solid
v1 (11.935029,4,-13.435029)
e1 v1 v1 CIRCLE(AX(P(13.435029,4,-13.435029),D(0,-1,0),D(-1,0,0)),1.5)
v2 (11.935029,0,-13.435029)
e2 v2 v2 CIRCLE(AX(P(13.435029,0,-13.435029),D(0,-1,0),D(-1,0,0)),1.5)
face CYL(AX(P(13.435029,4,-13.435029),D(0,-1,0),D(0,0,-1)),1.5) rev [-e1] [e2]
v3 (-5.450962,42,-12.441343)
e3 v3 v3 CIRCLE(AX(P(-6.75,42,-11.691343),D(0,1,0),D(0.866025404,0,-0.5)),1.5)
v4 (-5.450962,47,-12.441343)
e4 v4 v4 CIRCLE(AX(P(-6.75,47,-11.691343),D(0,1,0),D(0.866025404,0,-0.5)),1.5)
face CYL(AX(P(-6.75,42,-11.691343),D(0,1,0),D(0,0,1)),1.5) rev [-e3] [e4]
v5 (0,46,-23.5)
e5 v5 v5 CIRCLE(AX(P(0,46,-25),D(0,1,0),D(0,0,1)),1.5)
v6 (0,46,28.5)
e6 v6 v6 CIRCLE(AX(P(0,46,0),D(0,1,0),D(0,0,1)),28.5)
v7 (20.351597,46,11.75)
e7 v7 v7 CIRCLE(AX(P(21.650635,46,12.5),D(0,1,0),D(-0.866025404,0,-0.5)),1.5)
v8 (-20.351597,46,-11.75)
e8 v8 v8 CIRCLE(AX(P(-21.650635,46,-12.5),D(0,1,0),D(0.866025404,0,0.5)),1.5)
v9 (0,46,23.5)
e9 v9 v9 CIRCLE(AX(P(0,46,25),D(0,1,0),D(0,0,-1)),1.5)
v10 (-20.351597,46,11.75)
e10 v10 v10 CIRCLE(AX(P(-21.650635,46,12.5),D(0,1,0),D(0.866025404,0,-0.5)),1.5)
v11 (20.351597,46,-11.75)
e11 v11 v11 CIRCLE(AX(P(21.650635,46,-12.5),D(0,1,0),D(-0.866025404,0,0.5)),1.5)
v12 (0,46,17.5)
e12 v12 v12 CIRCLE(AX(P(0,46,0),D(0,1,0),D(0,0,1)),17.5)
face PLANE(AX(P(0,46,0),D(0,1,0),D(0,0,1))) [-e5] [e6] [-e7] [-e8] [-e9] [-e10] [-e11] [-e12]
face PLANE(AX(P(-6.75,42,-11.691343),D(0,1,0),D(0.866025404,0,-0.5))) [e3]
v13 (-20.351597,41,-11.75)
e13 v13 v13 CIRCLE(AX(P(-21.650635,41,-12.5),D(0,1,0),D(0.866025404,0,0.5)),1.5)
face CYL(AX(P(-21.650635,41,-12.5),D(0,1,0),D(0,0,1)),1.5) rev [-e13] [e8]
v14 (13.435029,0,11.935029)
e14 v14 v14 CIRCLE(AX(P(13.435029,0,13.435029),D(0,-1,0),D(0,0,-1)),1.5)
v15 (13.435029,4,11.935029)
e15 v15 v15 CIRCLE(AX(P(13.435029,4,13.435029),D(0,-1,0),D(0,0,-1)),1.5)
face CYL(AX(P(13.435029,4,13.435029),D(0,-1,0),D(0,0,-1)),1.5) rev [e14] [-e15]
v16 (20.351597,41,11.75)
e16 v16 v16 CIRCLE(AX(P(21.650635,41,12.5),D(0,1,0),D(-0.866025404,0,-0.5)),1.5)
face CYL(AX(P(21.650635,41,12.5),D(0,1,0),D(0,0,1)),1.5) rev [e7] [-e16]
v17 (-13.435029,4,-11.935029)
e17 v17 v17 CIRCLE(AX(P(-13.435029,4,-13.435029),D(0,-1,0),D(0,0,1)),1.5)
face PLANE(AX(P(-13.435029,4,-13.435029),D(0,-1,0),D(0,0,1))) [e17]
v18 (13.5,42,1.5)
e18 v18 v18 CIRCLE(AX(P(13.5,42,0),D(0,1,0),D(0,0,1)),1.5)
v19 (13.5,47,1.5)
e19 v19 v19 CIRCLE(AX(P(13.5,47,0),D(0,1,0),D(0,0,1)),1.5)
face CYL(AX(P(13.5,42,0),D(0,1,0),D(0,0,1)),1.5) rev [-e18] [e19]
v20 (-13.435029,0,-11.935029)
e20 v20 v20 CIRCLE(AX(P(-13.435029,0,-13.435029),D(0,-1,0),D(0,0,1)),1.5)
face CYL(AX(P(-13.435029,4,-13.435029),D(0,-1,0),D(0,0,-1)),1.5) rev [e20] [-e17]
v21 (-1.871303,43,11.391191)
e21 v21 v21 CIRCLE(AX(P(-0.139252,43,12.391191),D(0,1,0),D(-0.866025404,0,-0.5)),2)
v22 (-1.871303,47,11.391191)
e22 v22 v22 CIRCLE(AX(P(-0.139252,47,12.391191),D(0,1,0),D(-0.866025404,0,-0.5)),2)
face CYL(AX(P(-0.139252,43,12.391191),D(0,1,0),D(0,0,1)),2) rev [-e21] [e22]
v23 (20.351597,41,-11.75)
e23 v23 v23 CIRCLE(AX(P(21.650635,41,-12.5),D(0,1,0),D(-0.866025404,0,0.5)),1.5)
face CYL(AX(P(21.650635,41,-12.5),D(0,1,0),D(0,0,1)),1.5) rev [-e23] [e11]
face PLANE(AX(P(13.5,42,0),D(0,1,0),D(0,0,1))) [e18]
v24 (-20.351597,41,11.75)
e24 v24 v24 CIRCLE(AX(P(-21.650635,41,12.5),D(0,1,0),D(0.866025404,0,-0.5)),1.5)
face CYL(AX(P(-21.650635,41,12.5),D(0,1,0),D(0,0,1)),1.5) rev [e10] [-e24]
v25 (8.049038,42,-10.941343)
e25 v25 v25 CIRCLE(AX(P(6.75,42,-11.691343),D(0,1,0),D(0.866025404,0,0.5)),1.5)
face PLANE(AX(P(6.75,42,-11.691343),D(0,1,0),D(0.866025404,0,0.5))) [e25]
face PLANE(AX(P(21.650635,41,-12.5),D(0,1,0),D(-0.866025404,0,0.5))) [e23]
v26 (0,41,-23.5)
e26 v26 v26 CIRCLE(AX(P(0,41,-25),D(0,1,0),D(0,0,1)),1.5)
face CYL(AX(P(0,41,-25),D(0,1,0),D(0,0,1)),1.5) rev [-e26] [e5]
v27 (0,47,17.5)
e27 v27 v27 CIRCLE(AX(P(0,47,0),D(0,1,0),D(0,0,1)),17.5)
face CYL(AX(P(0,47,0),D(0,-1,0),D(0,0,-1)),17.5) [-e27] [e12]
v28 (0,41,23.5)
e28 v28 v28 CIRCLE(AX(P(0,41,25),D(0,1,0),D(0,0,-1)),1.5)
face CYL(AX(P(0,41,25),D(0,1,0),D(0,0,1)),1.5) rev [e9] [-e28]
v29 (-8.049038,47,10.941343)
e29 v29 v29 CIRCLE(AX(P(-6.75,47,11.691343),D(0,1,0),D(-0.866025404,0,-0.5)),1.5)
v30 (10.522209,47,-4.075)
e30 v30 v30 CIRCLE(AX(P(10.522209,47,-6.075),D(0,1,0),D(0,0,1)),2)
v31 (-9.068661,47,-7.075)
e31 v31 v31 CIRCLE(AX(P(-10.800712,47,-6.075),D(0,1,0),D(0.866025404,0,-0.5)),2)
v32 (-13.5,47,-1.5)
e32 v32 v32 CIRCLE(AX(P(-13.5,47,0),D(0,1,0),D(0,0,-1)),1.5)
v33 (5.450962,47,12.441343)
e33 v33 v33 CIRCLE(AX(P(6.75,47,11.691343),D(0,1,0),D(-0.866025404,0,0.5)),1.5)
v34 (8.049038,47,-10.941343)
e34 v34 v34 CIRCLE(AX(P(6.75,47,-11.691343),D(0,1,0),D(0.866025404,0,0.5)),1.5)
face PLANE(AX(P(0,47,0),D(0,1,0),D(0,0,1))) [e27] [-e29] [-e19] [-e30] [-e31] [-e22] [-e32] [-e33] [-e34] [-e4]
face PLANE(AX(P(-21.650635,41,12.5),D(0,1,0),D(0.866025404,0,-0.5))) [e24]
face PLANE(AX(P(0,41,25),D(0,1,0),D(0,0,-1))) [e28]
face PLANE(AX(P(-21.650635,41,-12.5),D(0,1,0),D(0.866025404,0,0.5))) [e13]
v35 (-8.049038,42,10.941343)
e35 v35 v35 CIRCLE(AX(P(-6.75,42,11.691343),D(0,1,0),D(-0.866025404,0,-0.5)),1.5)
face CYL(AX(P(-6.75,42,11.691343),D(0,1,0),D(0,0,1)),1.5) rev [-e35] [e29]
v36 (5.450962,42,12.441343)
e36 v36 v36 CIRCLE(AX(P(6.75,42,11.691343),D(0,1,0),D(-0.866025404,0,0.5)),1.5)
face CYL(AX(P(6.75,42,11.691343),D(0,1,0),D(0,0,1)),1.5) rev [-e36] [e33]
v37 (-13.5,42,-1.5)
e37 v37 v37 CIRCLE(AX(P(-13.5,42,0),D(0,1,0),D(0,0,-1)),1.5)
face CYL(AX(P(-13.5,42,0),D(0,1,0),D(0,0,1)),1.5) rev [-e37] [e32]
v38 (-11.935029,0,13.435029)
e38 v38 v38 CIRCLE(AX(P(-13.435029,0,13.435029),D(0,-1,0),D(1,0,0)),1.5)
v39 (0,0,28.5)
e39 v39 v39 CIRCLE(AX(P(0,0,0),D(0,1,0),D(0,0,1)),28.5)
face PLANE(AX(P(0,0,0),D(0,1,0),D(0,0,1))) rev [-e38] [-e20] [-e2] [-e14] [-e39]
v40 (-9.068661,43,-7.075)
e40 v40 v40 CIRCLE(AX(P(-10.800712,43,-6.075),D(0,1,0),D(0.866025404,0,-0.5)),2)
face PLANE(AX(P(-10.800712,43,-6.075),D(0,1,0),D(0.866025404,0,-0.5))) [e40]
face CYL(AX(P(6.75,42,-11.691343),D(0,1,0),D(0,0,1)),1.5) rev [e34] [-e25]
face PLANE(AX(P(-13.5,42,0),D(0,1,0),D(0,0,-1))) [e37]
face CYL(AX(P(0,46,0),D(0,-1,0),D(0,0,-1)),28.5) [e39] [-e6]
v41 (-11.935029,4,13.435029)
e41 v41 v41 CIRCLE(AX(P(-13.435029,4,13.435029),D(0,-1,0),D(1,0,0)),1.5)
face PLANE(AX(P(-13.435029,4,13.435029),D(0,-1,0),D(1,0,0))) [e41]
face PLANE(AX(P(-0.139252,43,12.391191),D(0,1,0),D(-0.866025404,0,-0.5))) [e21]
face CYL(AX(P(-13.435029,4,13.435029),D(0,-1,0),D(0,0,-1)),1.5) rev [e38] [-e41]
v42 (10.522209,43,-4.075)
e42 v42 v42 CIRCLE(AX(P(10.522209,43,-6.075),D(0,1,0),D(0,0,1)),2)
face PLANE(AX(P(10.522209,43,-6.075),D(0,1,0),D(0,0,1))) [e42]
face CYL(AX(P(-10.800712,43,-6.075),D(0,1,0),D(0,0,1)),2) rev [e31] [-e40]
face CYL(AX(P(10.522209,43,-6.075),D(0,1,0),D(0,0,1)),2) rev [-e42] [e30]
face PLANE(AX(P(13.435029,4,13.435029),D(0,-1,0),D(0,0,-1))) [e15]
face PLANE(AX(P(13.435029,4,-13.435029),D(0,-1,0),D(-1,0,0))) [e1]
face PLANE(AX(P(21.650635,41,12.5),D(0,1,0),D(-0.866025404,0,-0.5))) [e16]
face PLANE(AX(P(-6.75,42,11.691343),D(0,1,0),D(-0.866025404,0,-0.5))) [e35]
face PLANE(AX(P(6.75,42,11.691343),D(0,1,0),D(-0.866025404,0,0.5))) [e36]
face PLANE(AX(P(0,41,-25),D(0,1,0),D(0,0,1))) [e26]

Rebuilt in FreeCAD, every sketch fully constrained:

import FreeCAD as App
import Part
import Sketcher

V = App.Vector

doc = App.newDocument("Part")
body = doc.addObject("PartDesign::Body", "Body")

# Sketch on XZ plane
sketch1 = body.newObject("Sketcher::SketchObject", "Sketch")
sketch1.AttachmentSupport = (doc.getObject("XZ_Plane"), [""])
sketch1.MapMode = "FlatFace"
sketch1.addGeometry(Part.Circle(V(0, 0, 0), V(0, 0, 1), 28), False)
sketch1.addConstraint([
    Sketcher.Constraint("Coincident", 0, 3, -1, 1),
    Sketcher.Constraint("Diameter", 0, 57.0),
])
pad1 = body.newObject("PartDesign::Pad", "Pad")
pad1.Profile = sketch1
pad1.Length = 46
pad1.Reversed = True

# Sketch on XZ plane
sketch2 = body.newObject("Sketcher::SketchObject", "Sketch001")
sketch2.AttachmentSupport = (doc.getObject("XZ_Plane"), [""])
sketch2.MapMode = "FlatFace"
sketch2.AttachmentOffset = App.Placement(V(0, 0, -46), App.Rotation())
sketch2.addGeometry(Part.Circle(V(0, 0, 0), V(0, 0, 1), 18), False)
sketch2.addConstraint([
    Sketcher.Constraint("Coincident", 0, 3, -1, 1),
    Sketcher.Constraint("Diameter", 0, 35.0),
])
pad2 = body.newObject("PartDesign::Pad", "Pad001")
pad2.Profile = sketch2
pad2.Length = 1
pad2.Reversed = True

# Sketch on XZ plane
sketch3 = body.newObject("Sketcher::SketchObject", "Sketch002")
sketch3.AttachmentSupport = (doc.getObject("XZ_Plane"), [""])
sketch3.MapMode = "FlatFace"
sketch3.addGeometry(Part.Circle(V(13.4, 13.4, 0), V(0, 0, 1), 1.5), False)
sketch3.addConstraint([
    Sketcher.Constraint("Diameter", 0, 3.0),
    Sketcher.Constraint("DistanceX", -1, 1, 0, 3, 13.435029),
    Sketcher.Constraint("DistanceY", -1, 1, 0, 3, 13.435029),
])
pocket1 = body.newObject("PartDesign::Pocket", "Pocket")
pocket1.Profile = sketch3
pocket1.Length = 4
doc.recompute()

polarpattern = body.newObject("PartDesign::PolarPattern", "PolarPattern")
polarpattern.Originals = [pocket1]
polarpattern.Axis = (doc.getObject("Y_Axis"), [""])
polarpattern.Angle = 360
polarpattern.Occurrences = 4
body.Tip = polarpattern

# Sketch on XZ plane
sketch4 = body.newObject("Sketcher::SketchObject", "Sketch003")
sketch4.AttachmentSupport = (doc.getObject("XZ_Plane"), [""])
sketch4.MapMode = "FlatFace"
sketch4.AttachmentOffset = App.Placement(V(0, 0, -47), App.Rotation())
sketch4.addGeometry(Part.Circle(V(10.5, -6.1, 0), V(0, 0, 1), 2), False)
sketch4.addConstraint([
    Sketcher.Constraint("Diameter", 0, 4.0),
    Sketcher.Constraint("DistanceY", 0, 3, -1, 1, 6.075),
    Sketcher.Constraint("DistanceX", -1, 1, 0, 3, 10.522209),
])
pocket2 = body.newObject("PartDesign::Pocket", "Pocket001")
pocket2.Profile = sketch4
pocket2.Length = 4
pocket2.Reversed = True
doc.recompute()

datumline = body.newObject("PartDesign::Line", "DatumLine")
datumline.Placement = App.Placement(V(-0.139252, 0, 0.080397), App.Rotation(V(0, 0, 1), V(0, 1, 0)))
polarpattern2 = body.newObject("PartDesign::PolarPattern", "PolarPattern001")
polarpattern2.Originals = [pocket2]
polarpattern2.Axis = (datumline, [""])
polarpattern2.Angle = 360
polarpattern2.Occurrences = 3
body.Tip = polarpattern2

# Sketch on XZ plane
sketch5 = body.newObject("Sketcher::SketchObject", "Sketch004")
sketch5.AttachmentSupport = (doc.getObject("XZ_Plane"), [""])
sketch5.MapMode = "FlatFace"
sketch5.AttachmentOffset = App.Placement(V(0, 0, -47), App.Rotation())
sketch5.addGeometry(Part.Circle(V(13.5, 0, 0), V(0, 0, 1), 1.5), False)
sketch5.addConstraint([
    Sketcher.Constraint("PointOnObject", 0, 3, -1),
    Sketcher.Constraint("Diameter", 0, 3.0),
    Sketcher.Constraint("DistanceX", -1, 1, 0, 3, 13.5),
])
pocket3 = body.newObject("PartDesign::Pocket", "Pocket002")
pocket3.Profile = sketch5
pocket3.Length = 5
pocket3.Reversed = True
doc.recompute()

polarpattern3 = body.newObject("PartDesign::PolarPattern", "PolarPattern002")
polarpattern3.Originals = [pocket3]
polarpattern3.Axis = (doc.getObject("Y_Axis"), [""])
polarpattern3.Angle = 360
polarpattern3.Occurrences = 6
body.Tip = polarpattern3

# Sketch on XZ plane
sketch6 = body.newObject("Sketcher::SketchObject", "Sketch005")
sketch6.AttachmentSupport = (doc.getObject("XZ_Plane"), [""])
sketch6.MapMode = "FlatFace"
sketch6.AttachmentOffset = App.Placement(V(0, 0, -46), App.Rotation())
sketch6.addGeometry(Part.Circle(V(0, -25, 0), V(0, 0, 1), 1.5), False)
sketch6.addConstraint([
    Sketcher.Constraint("PointOnObject", 0, 3, -2),
    Sketcher.Constraint("Diameter", 0, 3.0),
    Sketcher.Constraint("DistanceY", 0, 3, -1, 1, 25.0),
])
pocket4 = body.newObject("PartDesign::Pocket", "Pocket003")
pocket4.Profile = sketch6
pocket4.Length = 5
pocket4.Reversed = True
doc.recompute()

polarpattern4 = body.newObject("PartDesign::PolarPattern", "PolarPattern003")
polarpattern4.Originals = [pocket4]
polarpattern4.Axis = (doc.getObject("Y_Axis"), [""])
polarpattern4.Angle = 360
polarpattern4.Occurrences = 6
body.Tip = polarpattern4

doc.recompute()
